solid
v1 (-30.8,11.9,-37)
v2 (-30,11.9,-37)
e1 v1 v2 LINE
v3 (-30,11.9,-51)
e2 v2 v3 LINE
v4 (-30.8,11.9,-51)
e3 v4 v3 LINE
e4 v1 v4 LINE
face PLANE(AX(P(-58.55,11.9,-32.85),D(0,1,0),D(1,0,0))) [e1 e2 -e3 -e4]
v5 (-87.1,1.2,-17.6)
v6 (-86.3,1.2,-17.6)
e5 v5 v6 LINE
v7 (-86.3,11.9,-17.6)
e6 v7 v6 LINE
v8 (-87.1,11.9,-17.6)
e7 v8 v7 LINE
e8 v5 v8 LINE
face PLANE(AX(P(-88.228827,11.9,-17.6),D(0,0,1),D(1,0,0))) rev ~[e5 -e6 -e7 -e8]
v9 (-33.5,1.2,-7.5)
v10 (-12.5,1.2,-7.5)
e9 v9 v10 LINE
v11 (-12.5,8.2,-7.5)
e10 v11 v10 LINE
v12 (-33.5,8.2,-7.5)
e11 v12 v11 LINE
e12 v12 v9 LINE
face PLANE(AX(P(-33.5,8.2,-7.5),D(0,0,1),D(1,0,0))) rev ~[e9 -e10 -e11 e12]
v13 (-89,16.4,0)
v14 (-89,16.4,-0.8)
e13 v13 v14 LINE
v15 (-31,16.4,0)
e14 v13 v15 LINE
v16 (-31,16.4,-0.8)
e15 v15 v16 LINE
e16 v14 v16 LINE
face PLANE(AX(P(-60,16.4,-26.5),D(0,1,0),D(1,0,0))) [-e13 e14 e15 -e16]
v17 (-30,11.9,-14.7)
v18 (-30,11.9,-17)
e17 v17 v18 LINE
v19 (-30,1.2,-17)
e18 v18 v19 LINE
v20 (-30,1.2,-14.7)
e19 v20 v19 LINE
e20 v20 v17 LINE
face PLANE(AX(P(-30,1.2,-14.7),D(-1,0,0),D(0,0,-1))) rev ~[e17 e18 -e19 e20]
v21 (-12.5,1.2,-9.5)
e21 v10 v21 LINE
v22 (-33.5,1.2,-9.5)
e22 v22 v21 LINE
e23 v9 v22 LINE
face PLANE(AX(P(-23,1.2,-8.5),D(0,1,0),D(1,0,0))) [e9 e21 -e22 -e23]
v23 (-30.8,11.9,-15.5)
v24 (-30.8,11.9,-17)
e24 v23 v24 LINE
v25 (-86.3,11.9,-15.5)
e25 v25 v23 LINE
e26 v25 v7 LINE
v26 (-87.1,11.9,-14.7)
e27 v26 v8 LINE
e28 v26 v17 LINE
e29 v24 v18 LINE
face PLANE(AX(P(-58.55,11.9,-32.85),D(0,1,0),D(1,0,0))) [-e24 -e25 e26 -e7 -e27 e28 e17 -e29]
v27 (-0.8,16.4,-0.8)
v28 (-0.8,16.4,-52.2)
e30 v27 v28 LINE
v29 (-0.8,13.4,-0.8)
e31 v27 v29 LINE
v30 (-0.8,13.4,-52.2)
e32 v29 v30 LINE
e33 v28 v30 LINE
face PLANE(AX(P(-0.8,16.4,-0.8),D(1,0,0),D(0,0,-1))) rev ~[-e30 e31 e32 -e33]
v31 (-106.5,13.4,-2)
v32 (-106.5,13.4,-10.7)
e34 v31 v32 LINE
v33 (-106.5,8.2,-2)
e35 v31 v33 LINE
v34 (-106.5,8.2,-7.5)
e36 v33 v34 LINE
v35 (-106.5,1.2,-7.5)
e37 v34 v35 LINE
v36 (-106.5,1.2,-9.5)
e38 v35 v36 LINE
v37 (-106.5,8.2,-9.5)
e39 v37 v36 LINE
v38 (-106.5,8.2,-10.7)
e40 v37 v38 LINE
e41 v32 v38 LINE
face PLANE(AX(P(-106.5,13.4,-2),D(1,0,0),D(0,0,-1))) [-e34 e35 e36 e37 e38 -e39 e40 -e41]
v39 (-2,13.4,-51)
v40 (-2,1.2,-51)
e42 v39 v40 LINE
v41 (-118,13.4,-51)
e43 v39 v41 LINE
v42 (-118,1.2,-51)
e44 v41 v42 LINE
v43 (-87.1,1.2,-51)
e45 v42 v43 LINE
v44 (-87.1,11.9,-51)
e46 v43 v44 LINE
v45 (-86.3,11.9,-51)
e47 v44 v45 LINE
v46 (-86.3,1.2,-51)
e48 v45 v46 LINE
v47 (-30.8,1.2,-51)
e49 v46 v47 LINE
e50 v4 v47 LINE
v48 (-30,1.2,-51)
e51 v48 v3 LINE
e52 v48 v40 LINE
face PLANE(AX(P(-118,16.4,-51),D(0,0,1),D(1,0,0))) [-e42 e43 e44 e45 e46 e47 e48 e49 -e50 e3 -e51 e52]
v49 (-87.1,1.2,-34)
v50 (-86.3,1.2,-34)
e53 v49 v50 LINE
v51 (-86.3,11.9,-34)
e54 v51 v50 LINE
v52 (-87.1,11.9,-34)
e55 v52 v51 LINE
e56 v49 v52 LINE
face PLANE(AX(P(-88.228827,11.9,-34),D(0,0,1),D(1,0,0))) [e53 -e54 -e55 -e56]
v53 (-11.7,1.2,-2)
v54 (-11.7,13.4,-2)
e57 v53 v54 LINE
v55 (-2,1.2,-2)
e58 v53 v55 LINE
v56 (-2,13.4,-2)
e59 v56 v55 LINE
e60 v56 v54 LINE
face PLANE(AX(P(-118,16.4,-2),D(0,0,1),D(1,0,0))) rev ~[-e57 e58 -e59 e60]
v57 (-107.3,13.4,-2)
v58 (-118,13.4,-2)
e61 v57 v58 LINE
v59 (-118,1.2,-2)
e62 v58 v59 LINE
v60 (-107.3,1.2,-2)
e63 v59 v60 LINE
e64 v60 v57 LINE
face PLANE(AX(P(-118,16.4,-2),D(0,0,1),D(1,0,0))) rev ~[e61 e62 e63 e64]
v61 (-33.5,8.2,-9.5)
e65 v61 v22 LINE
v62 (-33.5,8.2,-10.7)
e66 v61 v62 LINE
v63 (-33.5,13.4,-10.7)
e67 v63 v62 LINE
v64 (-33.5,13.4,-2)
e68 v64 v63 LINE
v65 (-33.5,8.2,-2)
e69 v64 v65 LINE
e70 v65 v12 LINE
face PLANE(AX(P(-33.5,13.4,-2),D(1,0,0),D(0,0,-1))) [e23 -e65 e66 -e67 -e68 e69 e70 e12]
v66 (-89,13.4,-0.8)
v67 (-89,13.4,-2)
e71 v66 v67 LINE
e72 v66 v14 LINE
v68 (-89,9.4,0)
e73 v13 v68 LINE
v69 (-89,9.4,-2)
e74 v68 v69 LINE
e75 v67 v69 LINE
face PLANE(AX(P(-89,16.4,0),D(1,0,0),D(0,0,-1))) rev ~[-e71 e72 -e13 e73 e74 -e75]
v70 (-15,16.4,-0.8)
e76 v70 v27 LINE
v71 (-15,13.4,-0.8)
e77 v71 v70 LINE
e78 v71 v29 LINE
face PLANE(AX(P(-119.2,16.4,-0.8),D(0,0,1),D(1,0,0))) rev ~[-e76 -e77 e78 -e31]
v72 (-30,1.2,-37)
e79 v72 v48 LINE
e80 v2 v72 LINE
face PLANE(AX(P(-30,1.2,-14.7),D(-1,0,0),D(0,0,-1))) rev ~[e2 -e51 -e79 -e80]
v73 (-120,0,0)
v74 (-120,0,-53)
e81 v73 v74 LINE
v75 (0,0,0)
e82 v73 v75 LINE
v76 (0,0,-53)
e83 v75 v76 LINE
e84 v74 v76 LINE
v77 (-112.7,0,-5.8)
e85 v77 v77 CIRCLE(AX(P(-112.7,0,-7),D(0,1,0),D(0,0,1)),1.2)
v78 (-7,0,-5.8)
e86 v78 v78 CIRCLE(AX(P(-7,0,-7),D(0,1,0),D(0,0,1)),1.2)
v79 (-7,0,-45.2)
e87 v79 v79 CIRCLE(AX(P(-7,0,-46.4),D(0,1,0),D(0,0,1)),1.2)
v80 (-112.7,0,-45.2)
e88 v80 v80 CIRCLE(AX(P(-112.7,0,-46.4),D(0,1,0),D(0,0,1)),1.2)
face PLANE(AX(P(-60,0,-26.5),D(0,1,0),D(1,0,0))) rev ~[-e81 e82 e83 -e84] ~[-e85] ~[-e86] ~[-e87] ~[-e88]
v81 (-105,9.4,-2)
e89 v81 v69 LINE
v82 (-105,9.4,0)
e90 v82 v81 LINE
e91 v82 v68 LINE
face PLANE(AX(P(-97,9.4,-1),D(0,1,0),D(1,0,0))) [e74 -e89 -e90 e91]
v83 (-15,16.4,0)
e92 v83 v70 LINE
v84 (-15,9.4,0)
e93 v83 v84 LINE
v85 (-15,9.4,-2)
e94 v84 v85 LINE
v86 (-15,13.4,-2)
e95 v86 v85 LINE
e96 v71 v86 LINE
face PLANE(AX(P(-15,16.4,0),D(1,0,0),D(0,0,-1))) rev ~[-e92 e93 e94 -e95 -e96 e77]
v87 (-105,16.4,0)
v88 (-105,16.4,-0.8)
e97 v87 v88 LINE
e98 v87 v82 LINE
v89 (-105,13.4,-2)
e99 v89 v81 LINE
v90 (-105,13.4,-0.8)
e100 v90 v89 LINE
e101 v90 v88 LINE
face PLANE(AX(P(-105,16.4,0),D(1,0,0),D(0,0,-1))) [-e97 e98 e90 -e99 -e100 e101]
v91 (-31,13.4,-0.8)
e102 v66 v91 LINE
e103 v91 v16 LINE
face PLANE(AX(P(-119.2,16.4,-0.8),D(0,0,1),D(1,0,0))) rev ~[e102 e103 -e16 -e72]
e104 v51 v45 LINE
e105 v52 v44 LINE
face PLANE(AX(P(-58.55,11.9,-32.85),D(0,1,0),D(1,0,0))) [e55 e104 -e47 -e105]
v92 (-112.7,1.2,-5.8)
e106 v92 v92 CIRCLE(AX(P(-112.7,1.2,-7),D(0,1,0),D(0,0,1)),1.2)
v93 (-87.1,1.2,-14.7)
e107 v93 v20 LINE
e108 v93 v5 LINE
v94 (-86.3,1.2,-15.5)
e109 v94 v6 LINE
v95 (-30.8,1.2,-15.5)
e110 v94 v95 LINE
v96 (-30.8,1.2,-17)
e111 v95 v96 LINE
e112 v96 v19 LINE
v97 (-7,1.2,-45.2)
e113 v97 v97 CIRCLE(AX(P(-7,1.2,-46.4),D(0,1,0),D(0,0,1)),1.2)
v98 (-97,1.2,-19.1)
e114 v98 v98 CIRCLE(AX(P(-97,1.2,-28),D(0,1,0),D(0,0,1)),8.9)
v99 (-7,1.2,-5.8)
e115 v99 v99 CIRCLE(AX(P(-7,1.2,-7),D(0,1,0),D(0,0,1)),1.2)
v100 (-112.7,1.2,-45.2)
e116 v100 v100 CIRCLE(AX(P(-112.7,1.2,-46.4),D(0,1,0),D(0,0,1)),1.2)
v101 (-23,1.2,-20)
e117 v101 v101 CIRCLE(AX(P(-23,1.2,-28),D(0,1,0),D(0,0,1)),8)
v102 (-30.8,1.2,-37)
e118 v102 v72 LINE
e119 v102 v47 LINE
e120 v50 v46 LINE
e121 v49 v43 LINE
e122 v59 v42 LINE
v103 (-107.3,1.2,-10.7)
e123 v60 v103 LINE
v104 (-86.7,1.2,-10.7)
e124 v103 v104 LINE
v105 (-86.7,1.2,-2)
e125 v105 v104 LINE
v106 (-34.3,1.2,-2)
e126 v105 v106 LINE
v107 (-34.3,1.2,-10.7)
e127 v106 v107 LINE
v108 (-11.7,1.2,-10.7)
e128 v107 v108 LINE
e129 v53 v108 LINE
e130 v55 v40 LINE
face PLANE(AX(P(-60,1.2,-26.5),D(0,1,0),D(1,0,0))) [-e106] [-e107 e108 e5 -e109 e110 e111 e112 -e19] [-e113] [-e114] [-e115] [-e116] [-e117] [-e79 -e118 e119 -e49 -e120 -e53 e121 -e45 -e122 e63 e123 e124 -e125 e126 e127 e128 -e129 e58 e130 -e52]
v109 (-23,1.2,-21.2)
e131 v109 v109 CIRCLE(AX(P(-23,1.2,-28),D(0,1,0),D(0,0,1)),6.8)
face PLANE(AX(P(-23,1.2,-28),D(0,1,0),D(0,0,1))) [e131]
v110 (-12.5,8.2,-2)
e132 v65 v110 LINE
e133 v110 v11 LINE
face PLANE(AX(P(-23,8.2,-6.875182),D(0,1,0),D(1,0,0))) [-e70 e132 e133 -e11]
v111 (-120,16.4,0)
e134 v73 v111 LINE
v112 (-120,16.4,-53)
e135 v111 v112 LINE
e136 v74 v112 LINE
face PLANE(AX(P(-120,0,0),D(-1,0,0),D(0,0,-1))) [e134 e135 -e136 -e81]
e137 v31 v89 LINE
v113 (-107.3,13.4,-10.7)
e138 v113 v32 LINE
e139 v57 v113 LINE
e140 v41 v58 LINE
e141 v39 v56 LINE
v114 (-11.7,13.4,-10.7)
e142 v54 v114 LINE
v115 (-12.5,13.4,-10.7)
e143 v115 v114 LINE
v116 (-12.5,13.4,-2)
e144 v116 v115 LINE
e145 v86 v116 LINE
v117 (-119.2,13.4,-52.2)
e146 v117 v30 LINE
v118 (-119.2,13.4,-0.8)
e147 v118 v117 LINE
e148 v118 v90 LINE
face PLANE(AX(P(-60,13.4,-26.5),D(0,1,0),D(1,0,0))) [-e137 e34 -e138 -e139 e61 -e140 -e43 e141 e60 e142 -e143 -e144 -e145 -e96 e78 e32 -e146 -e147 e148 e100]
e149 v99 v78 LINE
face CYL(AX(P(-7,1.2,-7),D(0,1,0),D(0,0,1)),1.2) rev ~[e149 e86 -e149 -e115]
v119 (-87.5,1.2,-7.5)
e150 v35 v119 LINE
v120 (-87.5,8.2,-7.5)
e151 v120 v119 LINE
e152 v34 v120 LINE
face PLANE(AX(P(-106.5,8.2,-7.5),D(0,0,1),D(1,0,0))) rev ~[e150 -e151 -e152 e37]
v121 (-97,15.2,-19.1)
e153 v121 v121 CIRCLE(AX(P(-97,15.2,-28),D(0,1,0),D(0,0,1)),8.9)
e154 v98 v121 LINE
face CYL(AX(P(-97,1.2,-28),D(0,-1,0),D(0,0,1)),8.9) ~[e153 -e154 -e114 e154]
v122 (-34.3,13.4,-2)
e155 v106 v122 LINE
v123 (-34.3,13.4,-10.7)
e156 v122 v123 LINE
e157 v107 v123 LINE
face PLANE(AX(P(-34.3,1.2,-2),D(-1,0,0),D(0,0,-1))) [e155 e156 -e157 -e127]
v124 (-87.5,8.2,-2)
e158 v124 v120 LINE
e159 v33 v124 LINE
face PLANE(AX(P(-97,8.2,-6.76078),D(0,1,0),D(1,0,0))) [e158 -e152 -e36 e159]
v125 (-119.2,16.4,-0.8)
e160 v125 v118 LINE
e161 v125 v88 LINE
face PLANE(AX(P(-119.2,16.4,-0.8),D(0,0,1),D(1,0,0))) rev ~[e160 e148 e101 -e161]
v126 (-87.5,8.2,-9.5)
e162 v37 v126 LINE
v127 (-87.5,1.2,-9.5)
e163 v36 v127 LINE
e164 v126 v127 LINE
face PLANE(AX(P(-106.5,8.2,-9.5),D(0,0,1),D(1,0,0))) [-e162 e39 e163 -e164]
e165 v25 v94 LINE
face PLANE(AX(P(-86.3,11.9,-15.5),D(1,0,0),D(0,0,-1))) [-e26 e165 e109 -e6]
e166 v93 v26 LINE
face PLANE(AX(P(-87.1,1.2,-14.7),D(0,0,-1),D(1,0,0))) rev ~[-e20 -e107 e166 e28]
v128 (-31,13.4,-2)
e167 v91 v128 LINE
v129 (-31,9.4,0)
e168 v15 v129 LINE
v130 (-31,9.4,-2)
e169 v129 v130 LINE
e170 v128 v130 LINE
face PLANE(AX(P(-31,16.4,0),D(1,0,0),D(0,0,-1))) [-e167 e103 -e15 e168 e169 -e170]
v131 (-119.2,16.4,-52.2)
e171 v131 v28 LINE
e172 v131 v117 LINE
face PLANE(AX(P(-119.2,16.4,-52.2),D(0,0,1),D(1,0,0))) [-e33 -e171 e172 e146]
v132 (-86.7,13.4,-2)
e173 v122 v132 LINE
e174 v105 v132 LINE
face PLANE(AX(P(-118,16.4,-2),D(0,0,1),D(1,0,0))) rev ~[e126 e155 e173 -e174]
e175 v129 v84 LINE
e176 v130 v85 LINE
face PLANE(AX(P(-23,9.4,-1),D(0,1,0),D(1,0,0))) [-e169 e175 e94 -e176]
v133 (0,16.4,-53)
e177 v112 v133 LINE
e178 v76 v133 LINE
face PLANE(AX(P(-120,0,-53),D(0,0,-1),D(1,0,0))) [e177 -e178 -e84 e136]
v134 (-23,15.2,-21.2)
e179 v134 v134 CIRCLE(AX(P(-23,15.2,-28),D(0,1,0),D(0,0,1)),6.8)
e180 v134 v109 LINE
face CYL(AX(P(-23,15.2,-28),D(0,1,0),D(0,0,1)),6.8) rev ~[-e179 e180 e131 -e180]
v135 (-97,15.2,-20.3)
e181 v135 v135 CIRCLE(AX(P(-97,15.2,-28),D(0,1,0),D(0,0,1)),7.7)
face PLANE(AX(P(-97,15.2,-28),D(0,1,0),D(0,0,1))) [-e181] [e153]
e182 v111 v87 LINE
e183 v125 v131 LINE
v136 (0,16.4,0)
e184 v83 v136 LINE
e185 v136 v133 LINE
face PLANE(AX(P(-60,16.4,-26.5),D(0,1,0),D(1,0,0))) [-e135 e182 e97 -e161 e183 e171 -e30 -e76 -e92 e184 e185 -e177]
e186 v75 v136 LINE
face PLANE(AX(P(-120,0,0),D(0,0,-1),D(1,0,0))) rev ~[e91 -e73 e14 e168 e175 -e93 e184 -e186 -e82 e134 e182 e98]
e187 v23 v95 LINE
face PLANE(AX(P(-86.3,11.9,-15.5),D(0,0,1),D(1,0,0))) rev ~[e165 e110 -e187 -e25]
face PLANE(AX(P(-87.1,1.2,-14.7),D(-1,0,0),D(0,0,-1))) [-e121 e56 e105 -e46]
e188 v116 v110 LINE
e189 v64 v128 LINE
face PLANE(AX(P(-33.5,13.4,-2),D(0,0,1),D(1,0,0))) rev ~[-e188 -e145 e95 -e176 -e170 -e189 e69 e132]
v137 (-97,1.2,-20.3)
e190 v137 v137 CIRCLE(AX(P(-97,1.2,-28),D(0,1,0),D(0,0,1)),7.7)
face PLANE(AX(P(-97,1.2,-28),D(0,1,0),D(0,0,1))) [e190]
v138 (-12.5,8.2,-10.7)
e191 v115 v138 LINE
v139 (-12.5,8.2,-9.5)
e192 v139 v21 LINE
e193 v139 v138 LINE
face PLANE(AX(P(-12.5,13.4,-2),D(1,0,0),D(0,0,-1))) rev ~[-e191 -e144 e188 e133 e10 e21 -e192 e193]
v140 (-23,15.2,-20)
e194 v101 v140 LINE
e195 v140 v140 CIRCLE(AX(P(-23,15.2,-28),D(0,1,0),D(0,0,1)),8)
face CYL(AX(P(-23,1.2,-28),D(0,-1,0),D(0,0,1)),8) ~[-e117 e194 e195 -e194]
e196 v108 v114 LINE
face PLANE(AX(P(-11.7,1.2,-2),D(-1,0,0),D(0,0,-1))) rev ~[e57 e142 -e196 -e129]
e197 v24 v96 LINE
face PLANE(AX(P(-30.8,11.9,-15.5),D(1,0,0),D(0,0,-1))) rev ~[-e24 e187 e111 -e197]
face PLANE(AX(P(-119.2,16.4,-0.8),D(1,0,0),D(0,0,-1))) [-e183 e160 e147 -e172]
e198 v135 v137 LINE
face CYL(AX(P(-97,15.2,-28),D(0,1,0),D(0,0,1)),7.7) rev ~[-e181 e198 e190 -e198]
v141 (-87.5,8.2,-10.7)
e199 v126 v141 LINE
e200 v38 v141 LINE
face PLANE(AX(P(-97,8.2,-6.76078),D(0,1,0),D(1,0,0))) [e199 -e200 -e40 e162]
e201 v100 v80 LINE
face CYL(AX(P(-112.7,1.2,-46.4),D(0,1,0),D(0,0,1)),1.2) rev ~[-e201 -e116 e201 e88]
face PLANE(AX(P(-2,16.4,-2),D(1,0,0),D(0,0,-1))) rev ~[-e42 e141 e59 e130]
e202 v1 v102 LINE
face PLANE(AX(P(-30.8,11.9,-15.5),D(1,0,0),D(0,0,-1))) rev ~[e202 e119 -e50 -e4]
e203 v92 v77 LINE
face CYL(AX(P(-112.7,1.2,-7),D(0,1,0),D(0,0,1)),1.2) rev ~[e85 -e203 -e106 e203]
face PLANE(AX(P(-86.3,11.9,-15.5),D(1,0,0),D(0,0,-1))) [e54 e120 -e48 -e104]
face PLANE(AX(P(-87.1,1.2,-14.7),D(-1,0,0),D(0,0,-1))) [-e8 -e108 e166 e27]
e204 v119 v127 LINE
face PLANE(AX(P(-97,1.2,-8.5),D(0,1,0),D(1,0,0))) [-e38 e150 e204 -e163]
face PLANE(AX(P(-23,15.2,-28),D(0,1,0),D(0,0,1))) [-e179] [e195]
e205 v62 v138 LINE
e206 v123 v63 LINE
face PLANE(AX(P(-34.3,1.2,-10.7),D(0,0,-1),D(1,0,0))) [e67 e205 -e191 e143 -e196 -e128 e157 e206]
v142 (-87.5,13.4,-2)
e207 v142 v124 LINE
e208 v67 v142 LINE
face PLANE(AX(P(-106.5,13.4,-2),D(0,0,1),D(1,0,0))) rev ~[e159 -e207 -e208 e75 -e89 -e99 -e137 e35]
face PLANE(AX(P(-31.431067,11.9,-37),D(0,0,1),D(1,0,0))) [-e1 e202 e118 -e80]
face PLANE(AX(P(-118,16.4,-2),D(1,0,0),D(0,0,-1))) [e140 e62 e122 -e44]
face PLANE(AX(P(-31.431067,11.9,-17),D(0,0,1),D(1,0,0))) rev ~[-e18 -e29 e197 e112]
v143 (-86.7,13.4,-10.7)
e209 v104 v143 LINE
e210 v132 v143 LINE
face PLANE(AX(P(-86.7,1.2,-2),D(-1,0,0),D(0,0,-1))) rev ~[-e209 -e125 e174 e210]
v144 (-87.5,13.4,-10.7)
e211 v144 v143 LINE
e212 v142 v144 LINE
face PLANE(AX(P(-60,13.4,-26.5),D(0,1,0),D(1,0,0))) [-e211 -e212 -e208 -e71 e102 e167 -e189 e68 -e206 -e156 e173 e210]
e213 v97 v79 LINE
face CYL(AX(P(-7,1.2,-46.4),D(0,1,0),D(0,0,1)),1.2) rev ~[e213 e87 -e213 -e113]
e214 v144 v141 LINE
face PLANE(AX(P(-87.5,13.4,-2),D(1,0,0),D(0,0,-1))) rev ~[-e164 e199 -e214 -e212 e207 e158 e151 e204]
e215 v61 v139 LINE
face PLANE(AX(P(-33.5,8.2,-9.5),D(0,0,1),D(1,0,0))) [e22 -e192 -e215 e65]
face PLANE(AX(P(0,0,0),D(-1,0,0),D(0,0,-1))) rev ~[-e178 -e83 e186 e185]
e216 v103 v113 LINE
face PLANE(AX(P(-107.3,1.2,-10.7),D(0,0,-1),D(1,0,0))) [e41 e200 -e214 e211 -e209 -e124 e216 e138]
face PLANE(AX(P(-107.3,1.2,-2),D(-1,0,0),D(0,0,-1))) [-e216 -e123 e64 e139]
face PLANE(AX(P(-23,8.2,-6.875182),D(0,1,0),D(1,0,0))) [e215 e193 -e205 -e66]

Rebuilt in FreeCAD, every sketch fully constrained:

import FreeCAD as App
import Part
import Sketcher

V = App.Vector
Q = App.Units.Quantity


def add_polygon(sketch, points):
    """Adds a closed chain of lines whose ends are joined by coincident constraints."""
    first, n = sketch.GeometryCount, len(points)
    for a, b in zip(points, points[1:] + points[:1]):
        sketch.addGeometry(Part.LineSegment(App.Vector(*a, 0), App.Vector(*b, 0)), False)
    for i in range(n):
        sketch.addConstraint(Sketcher.Constraint("Coincident", first + i, 2, first + (i + 1) % n, 1))

doc = App.newDocument("Part")
params = doc.addObject("Spreadsheet::Sheet", "Params")
for row, (alias, value) in enumerate([
    ("sketch1_width", "120 mm"),
    ("sketch1_height", "53 mm"),
    ("pad1_length", "16.4 mm"),
    ("sketch2_width", "116 mm"),
    ("sketch2_height", "49 mm"),
    ("pocket1_length", "15.2 mm"),
    ("sketch3_width", "118.4 mm"),
    ("sketch3_height", "51.4 mm"),
    ("pocket2_length", "3 mm"),
    ("sketch4_width", "57.1 mm"),
    ("sketch4_height", "36.3 mm"),
    ("pad2_length", "10.7 mm"),
    ("sketch5_width", "55.5 mm"),
    ("sketch5_height", "35.5 mm"),
    ("pocket3_length", "10.7 mm"),
    ("sketch6_height", "16.4 mm"),
    ("pocket4_length", "10.7 mm"),
    ("sketch7_diameter", "17.8 mm"),
    ("pad3_length", "14 mm"),
    ("sketch8_diameter", "15.4 mm"),
    ("pocket5_length", "14 mm"),
    ("sketch9_height", "20 mm"),
    ("pocket6_length", "10.7 mm"),
    ("sketch10_diameter", "16 mm"),
    ("pad4_length", "14 mm"),
    ("sketch11_diameter", "13.6 mm"),
    ("pocket7_length", "14 mm"),
    ("sketch12_width", "22.6 mm"),
    ("sketch12_height", "8.7 mm"),
    ("pad5_length", "12.2 mm"),
    ("sketch13_width", "21 mm"),
    ("pocket8_length", "5.2 mm"),
    ("sketch14_width", "16 mm"),
    ("sketch14_height", "2 mm"),
    ("pocket9_length", "7 mm"),
    ("sketch15_width", "21 mm"),
    ("sketch15_height", "2 mm"),
    ("pocket10_length", "7 mm"),
    ("sketch16_width", "20.6 mm"),
    ("sketch16_height", "8.7 mm"),
    ("pad6_length", "12.2 mm"),
    ("sketch17_width", "19 mm"),
    ("pocket11_length", "5.2 mm"),
    ("sketch18_width", "16 mm"),
    ("sketch18_height", "2 mm"),
    ("pocket12_length", "7 mm"),
    ("sketch19_width", "19 mm"),
    ("sketch19_height", "2 mm"),
    ("pocket13_length", "7 mm"),
    ("sketch20_diameter", "2.4 mm"),
    ("pocket14_length", "5 mm"),
    ("sketch21_diameter", "2.4 mm"),
    ("pocket15_length", "5 mm"),
    ("sketch22_diameter", "2.4 mm"),
    ("pocket16_length", "5 mm"),
    ("sketch23_diameter", "2.4 mm"),
    ("pocket17_length", "5 mm"),
], start=1):
    params.set(f"A{row}", alias)
    params.set(f"B{row}", "=" + value)
    params.setAlias(f"B{row}", alias)

body = doc.addObject("PartDesign::Body", "Body")

# Sketch on XZ plane
sketch1 = doc.addObject("Sketcher::SketchObject", "Sketch")
body.addObject(sketch1)
sketch1.AttachmentSupport = (doc.XZ_Plane, [""])
sketch1.MapMode = "FlatFace"
add_polygon(sketch1, [(-120, -53), (-120, 0), (0, 0), (0, -53)])  # lines 0-3
sketch1.addConstraint([
    Sketcher.Constraint("Vertical", 0),
    Sketcher.Constraint("Horizontal", 1),
    Sketcher.Constraint("Vertical", 2),
    Sketcher.Constraint("Horizontal", 3),
    Sketcher.Constraint("Coincident", 1, 2, -1, 1),
    Sketcher.Constraint("DistanceX", 1, 1, 1, 2, Q("120 mm")),
    Sketcher.Constraint("DistanceY", 0, 1, 0, 2, Q("53 mm")),
])
sketch1.setExpression("Constraints[9]", "Params.sketch1_width")
sketch1.setExpression("Constraints[10]", "Params.sketch1_height")
pad1 = doc.addObject("PartDesign::Pad", "Pad")
body.addObject(pad1)
pad1.Profile = sketch1
pad1.setExpression("Length", "Params.pad1_length")
pad1.Reversed = True

# Sketch on XZ plane
sketch2 = doc.addObject("Sketcher::SketchObject", "Sketch001")
body.addObject(sketch2)
sketch2.AttachmentSupport = (doc.XZ_Plane, [""])
sketch2.MapMode = "FlatFace"
sketch2.AttachmentOffset = App.Placement(V(0, 0, -16.4), App.Rotation())
add_polygon(sketch2, [(-118, -51), (-118, -2), (-2, -2), (-2, -51)])  # lines 0-3
sketch2.addConstraint([
    Sketcher.Constraint("Vertical", 0),
    Sketcher.Constraint("Horizontal", 1),
    Sketcher.Constraint("Vertical", 2),
    Sketcher.Constraint("Horizontal", 3),
    Sketcher.Constraint("DistanceX", 1, 1, 1, 2, Q("116 mm")),
    Sketcher.Constraint("DistanceY", 0, 1, 0, 2, Q("49 mm")),
    Sketcher.Constraint("DistanceX", 0, 2, -1, 1, Q("118 mm")),
    Sketcher.Constraint("DistanceY", 0, 2, -1, 1, Q("2 mm")),
])
sketch2.setExpression("Constraints[8]", "Params.sketch2_width")
sketch2.setExpression("Constraints[9]", "Params.sketch2_height")
pocket1 = doc.addObject("PartDesign::Pocket", "Pocket")
body.addObject(pocket1)
pocket1.Profile = sketch2
pocket1.setExpression("Length", "Params.pocket1_length")
pocket1.Reversed = True

# Sketch on XZ plane
sketch3 = doc.addObject("Sketcher::SketchObject", "Sketch002")
body.addObject(sketch3)
sketch3.AttachmentSupport = (doc.XZ_Plane, [""])
sketch3.MapMode = "FlatFace"
sketch3.AttachmentOffset = App.Placement(V(0, 0, -16.4), App.Rotation())
add_polygon(sketch3, [(-119.2, -52.2), (-119.2, -0.8), (-0.8, -0.8), (-0.8, -52.2)])  # lines 0-3
sketch3.addConstraint([
    Sketcher.Constraint("Vertical", 0),
    Sketcher.Constraint("Horizontal", 1),
    Sketcher.Constraint("Vertical", 2),
    Sketcher.Constraint("Horizontal", 3),
    Sketcher.Constraint("DistanceX", 1, 1, 1, 2, Q("118.4 mm")),
    Sketcher.Constraint("DistanceY", 0, 1, 0, 2, Q("51.4 mm")),
    Sketcher.Constraint("DistanceX", 0, 2, -1, 1, Q("119.2 mm")),
    Sketcher.Constraint("DistanceY", 0, 2, -1, 1, Q("0.8 mm")),
])
sketch3.setExpression("Constraints[8]", "Params.sketch3_width")
sketch3.setExpression("Constraints[9]", "Params.sketch3_height")
pocket2 = doc.addObject("PartDesign::Pocket", "Pocket001")
body.addObject(pocket2)
pocket2.Profile = sketch3
pocket2.setExpression("Length", "Params.pocket2_length")
pocket2.Reversed = True

# Sketch on XZ plane
sketch4 = doc.addObject("Sketcher::SketchObject", "Sketch003")
body.addObject(sketch4)
sketch4.AttachmentSupport = (doc.XZ_Plane, [""])
sketch4.MapMode = "FlatFace"
sketch4.AttachmentOffset = App.Placement(V(0, 0, -1.2), App.Rotation())
add_polygon(sketch4, [(-87.1, -51), (-87.1, -14.7), (-30, -14.7), (-30, -51)])  # lines 0-3
sketch4.addConstraint([
    Sketcher.Constraint("Vertical", 0),
    Sketcher.Constraint("Horizontal", 1),
    Sketcher.Constraint("Vertical", 2),
    Sketcher.Constraint("Horizontal", 3),
    Sketcher.Constraint("DistanceX", 1, 1, 1, 2, Q("57.1 mm")),
    Sketcher.Constraint("DistanceY", 0, 1, 0, 2, Q("36.3 mm")),
    Sketcher.Constraint("DistanceX", 1, 2, -1, 1, Q("30 mm")),
    Sketcher.Constraint("DistanceY", 2, 2, -1, 1, Q("51 mm")),
])
sketch4.setExpression("Constraints[8]", "Params.sketch4_width")
sketch4.setExpression("Constraints[9]", "Params.sketch4_height")
pad2 = doc.addObject("PartDesign::Pad", "Pad001")
body.addObject(pad2)
pad2.Profile = sketch4
pad2.setExpression("Length", "Params.pad2_length")
pad2.Reversed = True

# Sketch on XZ plane
sketch5 = doc.addObject("Sketcher::SketchObject", "Sketch004")
body.addObject(sketch5)
sketch5.AttachmentSupport = (doc.XZ_Plane, [""])
sketch5.MapMode = "FlatFace"
sketch5.AttachmentOffset = App.Placement(V(0, 0, -11.9), App.Rotation())
add_polygon(sketch5, [(-86.3, -51), (-86.3, -15.5), (-30.8, -15.5), (-30.8, -51)])  # lines 0-3
sketch5.addConstraint([
    Sketcher.Constraint("Vertical", 0),
    Sketcher.Constraint("Horizontal", 1),
    Sketcher.Constraint("Vertical", 2),
    Sketcher.Constraint("Horizontal", 3),
    Sketcher.Constraint("DistanceX", 1, 1, 1, 2, Q("55.5 mm")),
    Sketcher.Constraint("DistanceY", 0, 1, 0, 2, Q("35.5 mm")),
    Sketcher.Constraint("DistanceY", 2, 2, -1, 1, Q("51 mm")),
    Sketcher.Constraint("DistanceX", 0, 2, -1, 1, Q("86.3 mm")),
])
sketch5.setExpression("Constraints[8]", "Params.sketch5_width")
sketch5.setExpression("Constraints[9]", "Params.sketch5_height")
pocket3 = doc.addObject("PartDesign::Pocket", "Pocket002")
body.addObject(pocket3)
pocket3.Profile = sketch5
pocket3.setExpression("Length", "Params.pocket3_length")
pocket3.Reversed = True

# Sketch on XZ plane
sketch6 = doc.addObject("Sketcher::SketchObject", "Sketch005")
body.addObject(sketch6)
sketch6.AttachmentSupport = (doc.XZ_Plane, [""])
sketch6.MapMode = "FlatFace"
sketch6.AttachmentOffset = App.Placement(V(0, 0, -11.9), App.Rotation())
add_polygon(sketch6, [(-88.228827, -34), (-88.228827, -17.6), (-84.827764, -17.6), (-84.827764, -34)])  # lines 0-3
sketch6.addConstraint([
    Sketcher.Constraint("Vertical", 0),
    Sketcher.Constraint("Horizontal", 1),
    Sketcher.Constraint("Vertical", 2),
    Sketcher.Constraint("Horizontal", 3),
    Sketcher.Constraint("DistanceY", 0, 1, 0, 2, Q("16.4 mm")),
    Sketcher.Constraint("DistanceY", 2, 2, -1, 1, Q("34 mm")),
    Sketcher.Constraint("DistanceX", 1, 1, 1, 2, Q("3.401063 mm")),
    Sketcher.Constraint("DistanceX", 0, 2, -1, 1, Q("88.228827 mm")),
])
sketch6.setExpression("Constraints[8]", "Params.sketch6_height")
pocket4 = doc.addObject("PartDesign::Pocket", "Pocket003")
body.addObject(pocket4)
pocket4.Profile = sketch6
pocket4.setExpression("Length", "Params.pocket4_length")
pocket4.Reversed = True

# Sketch on XZ plane
sketch7 = doc.addObject("Sketcher::SketchObject", "Sketch006")
body.addObject(sketch7)
sketch7.AttachmentSupport = (doc.XZ_Plane, [""])
sketch7.MapMode = "FlatFace"
sketch7.AttachmentOffset = App.Placement(V(0, 0, -1.2), App.Rotation())
sketch7.addGeometry(Part.Circle(V(-97, -28, 0), V(0, 0, 1), 8.9), False)
sketch7.addConstraint([
    Sketcher.Constraint("Diameter", 0, Q("17.8 mm")),
    Sketcher.Constraint("DistanceX", 0, 3, -1, 1, Q("97 mm")),
    Sketcher.Constraint("DistanceY", 0, 3, -1, 1, Q("28 mm")),
])
sketch7.setExpression("Constraints[0]", "Params.sketch7_diameter")
pad3 = doc.addObject("PartDesign::Pad", "Pad002")
body.addObject(pad3)
pad3.Profile = sketch7
pad3.setExpression("Length", "Params.pad3_length")
pad3.Reversed = True

# Sketch on XZ plane
sketch8 = doc.addObject("Sketcher::SketchObject", "Sketch007")
body.addObject(sketch8)
sketch8.AttachmentSupport = (doc.XZ_Plane, [""])
sketch8.MapMode = "FlatFace"
sketch8.AttachmentOffset = App.Placement(V(0, 0, -15.2), App.Rotation())
sketch8.addGeometry(Part.Circle(V(-97, -28, 0), V(0, 0, 1), 7.7), False)
sketch8.addConstraint([
    Sketcher.Constraint("Diameter", 0, Q("15.4 mm")),
    Sketcher.Constraint("DistanceX", 0, 3, -1, 1, Q("97 mm")),
    Sketcher.Constraint("DistanceY", 0, 3, -1, 1, Q("28 mm")),
])
sketch8.setExpression("Constraints[0]", "Params.sketch8_diameter")
pocket5 = doc.addObject("PartDesign::Pocket", "Pocket004")
body.addObject(pocket5)
pocket5.Profile = sketch8
pocket5.setExpression("Length", "Params.pocket5_length")
pocket5.Reversed = True

# Sketch on XZ plane
sketch9 = doc.addObject("Sketcher::SketchObject", "Sketch008")
body.addObject(sketch9)
sketch9.AttachmentSupport = (doc.XZ_Plane, [""])
sketch9.MapMode = "FlatFace"
sketch9.AttachmentOffset = App.Placement(V(0, 0, -11.9), App.Rotation())
add_polygon(sketch9, [(-31.431067, -37), (-31.431067, -17), (-30, -17), (-30, -37)])  # lines 0-3
sketch9.addConstraint([
    Sketcher.Constraint("Vertical", 0),
    Sketcher.Constraint("Horizontal", 1),
    Sketcher.Constraint("Vertical", 2),
    Sketcher.Constraint("Horizontal", 3),
    Sketcher.Constraint("DistanceY", 0, 1, 0, 2, Q("20 mm")),
    Sketcher.Constraint("DistanceY", 0, 2, -1, 1, Q("17 mm")),
    Sketcher.Constraint("DistanceX", 1, 2, -1, 1, Q("30 mm")),
    Sketcher.Constraint("DistanceX", 1, 1, 1, 2, Q("1.431067 mm")),
])
sketch9.setExpression("Constraints[8]", "Params.sketch9_height")
pocket6 = doc.addObject("PartDesign::Pocket", "Pocket005")
body.addObject(pocket6)
pocket6.Profile = sketch9
pocket6.setExpression("Length", "Params.pocket6_length")
pocket6.Reversed = True

# Sketch on XZ plane
sketch10 = doc.addObject("Sketcher::SketchObject", "Sketch009")
body.addObject(sketch10)
sketch10.AttachmentSupport = (doc.XZ_Plane, [""])
sketch10.MapMode = "FlatFace"
sketch10.AttachmentOffset = App.Placement(V(0, 0, -1.2), App.Rotation())
sketch10.addGeometry(Part.Circle(V(-23, -28, 0), V(0, 0, 1), 8), False)
sketch10.addConstraint([
    Sketcher.Constraint("Diameter", 0, Q("16 mm")),
    Sketcher.Constraint("DistanceX", 0, 3, -1, 1, Q("23 mm")),
    Sketcher.Constraint("DistanceY", 0, 3, -1, 1, Q("28 mm")),
])
sketch10.setExpression("Constraints[0]", "Params.sketch10_diameter")
pad4 = doc.addObject("PartDesign::Pad", "Pad003")
body.addObject(pad4)
pad4.Profile = sketch10
pad4.setExpression("Length", "Params.pad4_length")
pad4.Reversed = True

# Sketch on XZ plane
sketch11 = doc.addObject("Sketcher::SketchObject", "Sketch010")
body.addObject(sketch11)
sketch11.AttachmentSupport = (doc.XZ_Plane, [""])
sketch11.MapMode = "FlatFace"
sketch11.AttachmentOffset = App.Placement(V(0, 0, -15.2), App.Rotation())
sketch11.addGeometry(Part.Circle(V(-23, -28, 0), V(0, 0, 1), 6.8), False)
sketch11.addConstraint([
    Sketcher.Constraint("Diameter", 0, Q("13.6 mm")),
    Sketcher.Constraint("DistanceX", 0, 3, -1, 1, Q("23 mm")),
    Sketcher.Constraint("DistanceY", 0, 3, -1, 1, Q("28 mm")),
])
sketch11.setExpression("Constraints[0]", "Params.sketch11_diameter")
pocket7 = doc.addObject("PartDesign::Pocket", "Pocket006")
body.addObject(pocket7)
pocket7.Profile = sketch11
pocket7.setExpression("Length", "Params.pocket7_length")
pocket7.Reversed = True

# Sketch on XZ plane
sketch12 = doc.addObject("Sketcher::SketchObject", "Sketch011")
body.addObject(sketch12)
sketch12.AttachmentSupport = (doc.XZ_Plane, [""])
sketch12.MapMode = "FlatFace"
sketch12.AttachmentOffset = App.Placement(V(0, 0, -1.2), App.Rotation())
add_polygon(sketch12, [(-34.3, -10.7), (-34.3, -2), (-11.7, -2), (-11.7, -10.7)])  # lines 0-3
sketch12.addConstraint([
    Sketcher.Constraint("Vertical", 0),
    Sketcher.Constraint("Horizontal", 1),
    Sketcher.Constraint("Vertical", 2),
    Sketcher.Constraint("Horizontal", 3),
    Sketcher.Constraint("DistanceX", 1, 1, 1, 2, Q("22.6 mm")),
    Sketcher.Constraint("DistanceY", 0, 1, 0, 2, Q("8.7 mm")),
    Sketcher.Constraint("DistanceY", 0, 2, -1, 1, Q("2 mm")),
    Sketcher.Constraint("DistanceX", 0, 2, -1, 1, Q("34.3 mm")),
])
sketch12.setExpression("Constraints[8]", "Params.sketch12_width")
sketch12.setExpression("Constraints[9]", "Params.sketch12_height")
pad5 = doc.addObject("PartDesign::Pad", "Pad004")
body.addObject(pad5)
pad5.Profile = sketch12
pad5.setExpression("Length", "Params.pad5_length")
pad5.Reversed = True

# Sketch on XZ plane
sketch13 = doc.addObject("Sketcher::SketchObject", "Sketch012")
body.addObject(sketch13)
sketch13.AttachmentSupport = (doc.XZ_Plane, [""])
sketch13.MapMode = "FlatFace"
sketch13.AttachmentOffset = App.Placement(V(0, 0, -13.4), App.Rotation())
add_polygon(sketch13, [(-33.5, -11.750364), (-33.5, -2), (-12.5, -2), (-12.5, -11.750364)])  # lines 0-3
sketch13.addConstraint([
    Sketcher.Constraint("Vertical", 0),
    Sketcher.Constraint("Horizontal", 1),
    Sketcher.Constraint("Vertical", 2),
    Sketcher.Constraint("Horizontal", 3),
    Sketcher.Constraint("DistanceX", 1, 1, 1, 2, Q("21 mm")),
    Sketcher.Constraint("DistanceY", 0, 2, -1, 1, Q("2 mm")),
    Sketcher.Constraint("DistanceX", 0, 2, -1, 1, Q("33.5 mm")),
    Sketcher.Constraint("DistanceY", 0, 1, 0, 2, Q("9.750364 mm")),
])
sketch13.setExpression("Constraints[8]", "Params.sketch13_width")
pocket8 = doc.addObject("PartDesign::Pocket", "Pocket007")
body.addObject(pocket8)
pocket8.Profile = sketch13
pocket8.setExpression("Length", "Params.pocket8_length")
pocket8.Reversed = True

# Sketch on XZ plane
sketch14 = doc.addObject("Sketcher::SketchObject", "Sketch013")
body.addObject(sketch14)
sketch14.AttachmentSupport = (doc.XZ_Plane, [""])
sketch14.MapMode = "FlatFace"
sketch14.AttachmentOffset = App.Placement(V(0, 0, -16.4), App.Rotation())
add_polygon(sketch14, [(-31, -2), (-31, 0), (-15, 0), (-15, -2)])  # lines 0-3
sketch14.addConstraint([
    Sketcher.Constraint("Vertical", 0),
    Sketcher.Constraint("Horizontal", 1),
    Sketcher.Constraint("Vertical", 2),
    Sketcher.Constraint("Horizontal", 3),
    Sketcher.Constraint("PointOnObject", 0, 2, -1),
    Sketcher.Constraint("DistanceX", 1, 1, 1, 2, Q("16 mm")),
    Sketcher.Constraint("DistanceY", 0, 1, 0, 2, Q("2 mm")),
    Sketcher.Constraint("DistanceX", 0, 2, -1, 1, Q("31 mm")),
])
sketch14.setExpression("Constraints[9]", "Params.sketch14_width")
sketch14.setExpression("Constraints[10]", "Params.sketch14_height")
pocket9 = doc.addObject("PartDesign::Pocket", "Pocket008")
body.addObject(pocket9)
pocket9.Profile = sketch14
pocket9.setExpression("Length", "Params.pocket9_length")
pocket9.Reversed = True

# Sketch on XZ plane
sketch15 = doc.addObject("Sketcher::SketchObject", "Sketch014")
body.addObject(sketch15)
sketch15.AttachmentSupport = (doc.XZ_Plane, [""])
sketch15.MapMode = "FlatFace"
sketch15.AttachmentOffset = App.Placement(V(0, 0, -8.2), App.Rotation())
add_polygon(sketch15, [(-33.5, -9.5), (-33.5, -7.5), (-12.5, -7.5), (-12.5, -9.5)])  # lines 0-3
sketch15.addConstraint([
    Sketcher.Constraint("Vertical", 0),
    Sketcher.Constraint("Horizontal", 1),
    Sketcher.Constraint("Vertical", 2),
    Sketcher.Constraint("Horizontal", 3),
    Sketcher.Constraint("DistanceX", 1, 1, 1, 2, Q("21 mm")),
    Sketcher.Constraint("DistanceY", 0, 1, 0, 2, Q("2 mm")),
    Sketcher.Constraint("DistanceX", 0, 2, -1, 1, Q("33.5 mm")),
    Sketcher.Constraint("DistanceY", 0, 2, -1, 1, Q("7.5 mm")),
])
sketch15.setExpression("Constraints[8]", "Params.sketch15_width")
sketch15.setExpression("Constraints[9]", "Params.sketch15_height")
pocket10 = doc.addObject("PartDesign::Pocket", "Pocket009")
body.addObject(pocket10)
pocket10.Profile = sketch15
pocket10.setExpression("Length", "Params.pocket10_length")
pocket10.Reversed = True

# Sketch on XZ plane
sketch16 = doc.addObject("Sketcher::SketchObject", "Sketch015")
body.addObject(sketch16)
sketch16.AttachmentSupport = (doc.XZ_Plane, [""])
sketch16.MapMode = "FlatFace"
sketch16.AttachmentOffset = App.Placement(V(0, 0, -1.2), App.Rotation())
add_polygon(sketch16, [(-107.3, -10.7), (-107.3, -2), (-86.7, -2), (-86.7, -10.7)])  # lines 0-3
sketch16.addConstraint([
    Sketcher.Constraint("Vertical", 0),
    Sketcher.Constraint("Horizontal", 1),
    Sketcher.Constraint("Vertical", 2),
    Sketcher.Constraint("Horizontal", 3),
    Sketcher.Constraint("DistanceX", 1, 1, 1, 2, Q("20.6 mm")),
    Sketcher.Constraint("DistanceY", 0, 1, 0, 2, Q("8.7 mm")),
    Sketcher.Constraint("DistanceY", 0, 2, -1, 1, Q("2 mm")),
    Sketcher.Constraint("DistanceX", 0, 2, -1, 1, Q("107.3 mm")),
])
sketch16.setExpression("Constraints[8]", "Params.sketch16_width")
sketch16.setExpression("Constraints[9]", "Params.sketch16_height")
pad6 = doc.addObject("PartDesign::Pad", "Pad005")
body.addObject(pad6)
pad6.Profile = sketch16
pad6.setExpression("Length", "Params.pad6_length")
pad6.Reversed = True

# Sketch on XZ plane
sketch17 = doc.addObject("Sketcher::SketchObject", "Sketch016")
body.addObject(sketch17)
sketch17.AttachmentSupport = (doc.XZ_Plane, [""])
sketch17.MapMode = "FlatFace"
sketch17.AttachmentOffset = App.Placement(V(0, 0, -13.4), App.Rotation())
add_polygon(sketch17, [(-106.5, -11.52156), (-106.5, -2), (-87.5, -2), (-87.5, -11.52156)])  # lines 0-3
sketch17.addConstraint([
    Sketcher.Constraint("Vertical", 0),
    Sketcher.Constraint("Horizontal", 1),
    Sketcher.Constraint("Vertical", 2),
    Sketcher.Constraint("Horizontal", 3),
    Sketcher.Constraint("DistanceX", 1, 1, 1, 2, Q("19 mm")),
    Sketcher.Constraint("DistanceY", 0, 2, -1, 1, Q("2 mm")),
    Sketcher.Constraint("DistanceX", 0, 2, -1, 1, Q("106.5 mm")),
    Sketcher.Constraint("DistanceY", 0, 1, 0, 2, Q("9.52156 mm")),
])
sketch17.setExpression("Constraints[8]", "Params.sketch17_width")
pocket11 = doc.addObject("PartDesign::Pocket", "Pocket010")
body.addObject(pocket11)
pocket11.Profile = sketch17
pocket11.setExpression("Length", "Params.pocket11_length")
pocket11.Reversed = True

# Sketch on XZ plane
sketch18 = doc.addObject("Sketcher::SketchObject", "Sketch017")
body.addObject(sketch18)
sketch18.AttachmentSupport = (doc.XZ_Plane, [""])
sketch18.MapMode = "FlatFace"
sketch18.AttachmentOffset = App.Placement(V(0, 0, -16.4), App.Rotation())
add_polygon(sketch18, [(-105, -2), (-105, 0), (-89, 0), (-89, -2)])  # lines 0-3
sketch18.addConstraint([
    Sketcher.Constraint("Vertical", 0),
    Sketcher.Constraint("Horizontal", 1),
    Sketcher.Constraint("Vertical", 2),
    Sketcher.Constraint("Horizontal", 3),
    Sketcher.Constraint("PointOnObject", 0, 2, -1),
    Sketcher.Constraint("DistanceX", 1, 1, 1, 2, Q("16 mm")),
    Sketcher.Constraint("DistanceY", 0, 1, 0, 2, Q("2 mm")),
    Sketcher.Constraint("DistanceX", 0, 2, -1, 1, Q("105 mm")),
])
sketch18.setExpression("Constraints[9]", "Params.sketch18_width")
sketch18.setExpression("Constraints[10]", "Params.sketch18_height")
pocket12 = doc.addObject("PartDesign::Pocket", "Pocket011")
body.addObject(pocket12)
pocket12.Profile = sketch18
pocket12.setExpression("Length", "Params.pocket12_length")
pocket12.Reversed = True

# Sketch on XZ plane
sketch19 = doc.addObject("Sketcher::SketchObject", "Sketch018")
body.addObject(sketch19)
sketch19.AttachmentSupport = (doc.XZ_Plane, [""])
sketch19.MapMode = "FlatFace"
sketch19.AttachmentOffset = App.Placement(V(0, 0, -8.2), App.Rotation())
add_polygon(sketch19, [(-106.5, -9.5), (-106.5, -7.5), (-87.5, -7.5), (-87.5, -9.5)])  # lines 0-3
sketch19.addConstraint([
    Sketcher.Constraint("Vertical", 0),
    Sketcher.Constraint("Horizontal", 1),
    Sketcher.Constraint("Vertical", 2),
    Sketcher.Constraint("Horizontal", 3),
    Sketcher.Constraint("DistanceX", 1, 1, 1, 2, Q("19 mm")),
    Sketcher.Constraint("DistanceY", 0, 1, 0, 2, Q("2 mm")),
    Sketcher.Constraint("DistanceX", 0, 2, -1, 1, Q("106.5 mm")),
    Sketcher.Constraint("DistanceY", 0, 2, -1, 1, Q("7.5 mm")),
])
sketch19.setExpression("Constraints[8]", "Params.sketch19_width")
sketch19.setExpression("Constraints[9]", "Params.sketch19_height")
pocket13 = doc.addObject("PartDesign::Pocket", "Pocket012")
body.addObject(pocket13)
pocket13.Profile = sketch19
pocket13.setExpression("Length", "Params.pocket13_length")
pocket13.Reversed = True

# Sketch on XZ plane
sketch20 = doc.addObject("Sketcher::SketchObject", "Sketch019")
body.addObject(sketch20)
sketch20.AttachmentSupport = (doc.XZ_Plane, [""])
sketch20.MapMode = "FlatFace"
sketch20.AttachmentOffset = App.Placement(V(0, 0, -1.2), App.Rotation())
sketch20.addGeometry(Part.Circle(V(-7, -7, 0), V(0, 0, 1), 1.2), False)
sketch20.addConstraint([
    Sketcher.Constraint("Diameter", 0, Q("2.4 mm")),
    Sketcher.Constraint("DistanceX", 0, 3, -1, 1, Q("7 mm")),
    Sketcher.Constraint("DistanceY", 0, 3, -1, 1, Q("7 mm")),
])
sketch20.setExpression("Constraints[0]", "Params.sketch20_diameter")
pocket14 = doc.addObject("PartDesign::Pocket", "Pocket013")
body.addObject(pocket14)
pocket14.Profile = sketch20
pocket14.setExpression("Length", "Params.pocket14_length")
pocket14.Reversed = True

# Sketch on XZ plane
sketch21 = doc.addObject("Sketcher::SketchObject", "Sketch020")
body.addObject(sketch21)
sketch21.AttachmentSupport = (doc.XZ_Plane, [""])
sketch21.MapMode = "FlatFace"
sketch21.AttachmentOffset = App.Placement(V(0, 0, -1.2), App.Rotation())
sketch21.addGeometry(Part.Circle(V(-7, -46.4, 0), V(0, 0, 1), 1.2), False)
sketch21.addConstraint([
    Sketcher.Constraint("Diameter", 0, Q("2.4 mm")),
    Sketcher.Constraint("DistanceX", 0, 3, -1, 1, Q("7 mm")),
    Sketcher.Constraint("DistanceY", 0, 3, -1, 1, Q("46.4 mm")),
])
sketch21.setExpression("Constraints[0]", "Params.sketch21_diameter")
pocket15 = doc.addObject("PartDesign::Pocket", "Pocket014")
body.addObject(pocket15)
pocket15.Profile = sketch21
pocket15.setExpression("Length", "Params.pocket15_length")
pocket15.Reversed = True

# Sketch on XZ plane
sketch22 = doc.addObject("Sketcher::SketchObject", "Sketch021")
body.addObject(sketch22)
sketch22.AttachmentSupport = (doc.XZ_Plane, [""])
sketch22.MapMode = "FlatFace"
sketch22.AttachmentOffset = App.Placement(V(0, 0, -1.2), App.Rotation())
sketch22.addGeometry(Part.Circle(V(-112.7, -7, 0), V(0, 0, 1), 1.2), False)
sketch22.addConstraint([
    Sketcher.Constraint("Diameter", 0, Q("2.4 mm")),
    Sketcher.Constraint("DistanceY", 0, 3, -1, 1, Q("7 mm")),
    Sketcher.Constraint("DistanceX", 0, 3, -1, 1, Q("112.7 mm")),
])
sketch22.setExpression("Constraints[0]", "Params.sketch22_diameter")
pocket16 = doc.addObject("PartDesign::Pocket", "Pocket015")
body.addObject(pocket16)
pocket16.Profile = sketch22
pocket16.setExpression("Length", "Params.pocket16_length")
pocket16.Reversed = True

# Sketch on XZ plane
sketch23 = doc.addObject("Sketcher::SketchObject", "Sketch022")
body.addObject(sketch23)
sketch23.AttachmentSupport = (doc.XZ_Plane, [""])
sketch23.MapMode = "FlatFace"
sketch23.AttachmentOffset = App.Placement(V(0, 0, -1.2), App.Rotation())
sketch23.addGeometry(Part.Circle(V(-112.7, -46.4, 0), V(0, 0, 1), 1.2), False)
sketch23.addConstraint([
    Sketcher.Constraint("Diameter", 0, Q("2.4 mm")),
    Sketcher.Constraint("DistanceX", 0, 3, -1, 1, Q("112.7 mm")),
    Sketcher.Constraint("DistanceY", 0, 3, -1, 1, Q("46.4 mm")),
])
sketch23.setExpression("Constraints[0]", "Params.sketch23_diameter")
pocket17 = doc.addObject("PartDesign::Pocket", "Pocket016")
body.addObject(pocket17)
pocket17.Profile = sketch23
pocket17.setExpression("Length", "Params.pocket17_length")
pocket17.Reversed = True

doc.recompute()
